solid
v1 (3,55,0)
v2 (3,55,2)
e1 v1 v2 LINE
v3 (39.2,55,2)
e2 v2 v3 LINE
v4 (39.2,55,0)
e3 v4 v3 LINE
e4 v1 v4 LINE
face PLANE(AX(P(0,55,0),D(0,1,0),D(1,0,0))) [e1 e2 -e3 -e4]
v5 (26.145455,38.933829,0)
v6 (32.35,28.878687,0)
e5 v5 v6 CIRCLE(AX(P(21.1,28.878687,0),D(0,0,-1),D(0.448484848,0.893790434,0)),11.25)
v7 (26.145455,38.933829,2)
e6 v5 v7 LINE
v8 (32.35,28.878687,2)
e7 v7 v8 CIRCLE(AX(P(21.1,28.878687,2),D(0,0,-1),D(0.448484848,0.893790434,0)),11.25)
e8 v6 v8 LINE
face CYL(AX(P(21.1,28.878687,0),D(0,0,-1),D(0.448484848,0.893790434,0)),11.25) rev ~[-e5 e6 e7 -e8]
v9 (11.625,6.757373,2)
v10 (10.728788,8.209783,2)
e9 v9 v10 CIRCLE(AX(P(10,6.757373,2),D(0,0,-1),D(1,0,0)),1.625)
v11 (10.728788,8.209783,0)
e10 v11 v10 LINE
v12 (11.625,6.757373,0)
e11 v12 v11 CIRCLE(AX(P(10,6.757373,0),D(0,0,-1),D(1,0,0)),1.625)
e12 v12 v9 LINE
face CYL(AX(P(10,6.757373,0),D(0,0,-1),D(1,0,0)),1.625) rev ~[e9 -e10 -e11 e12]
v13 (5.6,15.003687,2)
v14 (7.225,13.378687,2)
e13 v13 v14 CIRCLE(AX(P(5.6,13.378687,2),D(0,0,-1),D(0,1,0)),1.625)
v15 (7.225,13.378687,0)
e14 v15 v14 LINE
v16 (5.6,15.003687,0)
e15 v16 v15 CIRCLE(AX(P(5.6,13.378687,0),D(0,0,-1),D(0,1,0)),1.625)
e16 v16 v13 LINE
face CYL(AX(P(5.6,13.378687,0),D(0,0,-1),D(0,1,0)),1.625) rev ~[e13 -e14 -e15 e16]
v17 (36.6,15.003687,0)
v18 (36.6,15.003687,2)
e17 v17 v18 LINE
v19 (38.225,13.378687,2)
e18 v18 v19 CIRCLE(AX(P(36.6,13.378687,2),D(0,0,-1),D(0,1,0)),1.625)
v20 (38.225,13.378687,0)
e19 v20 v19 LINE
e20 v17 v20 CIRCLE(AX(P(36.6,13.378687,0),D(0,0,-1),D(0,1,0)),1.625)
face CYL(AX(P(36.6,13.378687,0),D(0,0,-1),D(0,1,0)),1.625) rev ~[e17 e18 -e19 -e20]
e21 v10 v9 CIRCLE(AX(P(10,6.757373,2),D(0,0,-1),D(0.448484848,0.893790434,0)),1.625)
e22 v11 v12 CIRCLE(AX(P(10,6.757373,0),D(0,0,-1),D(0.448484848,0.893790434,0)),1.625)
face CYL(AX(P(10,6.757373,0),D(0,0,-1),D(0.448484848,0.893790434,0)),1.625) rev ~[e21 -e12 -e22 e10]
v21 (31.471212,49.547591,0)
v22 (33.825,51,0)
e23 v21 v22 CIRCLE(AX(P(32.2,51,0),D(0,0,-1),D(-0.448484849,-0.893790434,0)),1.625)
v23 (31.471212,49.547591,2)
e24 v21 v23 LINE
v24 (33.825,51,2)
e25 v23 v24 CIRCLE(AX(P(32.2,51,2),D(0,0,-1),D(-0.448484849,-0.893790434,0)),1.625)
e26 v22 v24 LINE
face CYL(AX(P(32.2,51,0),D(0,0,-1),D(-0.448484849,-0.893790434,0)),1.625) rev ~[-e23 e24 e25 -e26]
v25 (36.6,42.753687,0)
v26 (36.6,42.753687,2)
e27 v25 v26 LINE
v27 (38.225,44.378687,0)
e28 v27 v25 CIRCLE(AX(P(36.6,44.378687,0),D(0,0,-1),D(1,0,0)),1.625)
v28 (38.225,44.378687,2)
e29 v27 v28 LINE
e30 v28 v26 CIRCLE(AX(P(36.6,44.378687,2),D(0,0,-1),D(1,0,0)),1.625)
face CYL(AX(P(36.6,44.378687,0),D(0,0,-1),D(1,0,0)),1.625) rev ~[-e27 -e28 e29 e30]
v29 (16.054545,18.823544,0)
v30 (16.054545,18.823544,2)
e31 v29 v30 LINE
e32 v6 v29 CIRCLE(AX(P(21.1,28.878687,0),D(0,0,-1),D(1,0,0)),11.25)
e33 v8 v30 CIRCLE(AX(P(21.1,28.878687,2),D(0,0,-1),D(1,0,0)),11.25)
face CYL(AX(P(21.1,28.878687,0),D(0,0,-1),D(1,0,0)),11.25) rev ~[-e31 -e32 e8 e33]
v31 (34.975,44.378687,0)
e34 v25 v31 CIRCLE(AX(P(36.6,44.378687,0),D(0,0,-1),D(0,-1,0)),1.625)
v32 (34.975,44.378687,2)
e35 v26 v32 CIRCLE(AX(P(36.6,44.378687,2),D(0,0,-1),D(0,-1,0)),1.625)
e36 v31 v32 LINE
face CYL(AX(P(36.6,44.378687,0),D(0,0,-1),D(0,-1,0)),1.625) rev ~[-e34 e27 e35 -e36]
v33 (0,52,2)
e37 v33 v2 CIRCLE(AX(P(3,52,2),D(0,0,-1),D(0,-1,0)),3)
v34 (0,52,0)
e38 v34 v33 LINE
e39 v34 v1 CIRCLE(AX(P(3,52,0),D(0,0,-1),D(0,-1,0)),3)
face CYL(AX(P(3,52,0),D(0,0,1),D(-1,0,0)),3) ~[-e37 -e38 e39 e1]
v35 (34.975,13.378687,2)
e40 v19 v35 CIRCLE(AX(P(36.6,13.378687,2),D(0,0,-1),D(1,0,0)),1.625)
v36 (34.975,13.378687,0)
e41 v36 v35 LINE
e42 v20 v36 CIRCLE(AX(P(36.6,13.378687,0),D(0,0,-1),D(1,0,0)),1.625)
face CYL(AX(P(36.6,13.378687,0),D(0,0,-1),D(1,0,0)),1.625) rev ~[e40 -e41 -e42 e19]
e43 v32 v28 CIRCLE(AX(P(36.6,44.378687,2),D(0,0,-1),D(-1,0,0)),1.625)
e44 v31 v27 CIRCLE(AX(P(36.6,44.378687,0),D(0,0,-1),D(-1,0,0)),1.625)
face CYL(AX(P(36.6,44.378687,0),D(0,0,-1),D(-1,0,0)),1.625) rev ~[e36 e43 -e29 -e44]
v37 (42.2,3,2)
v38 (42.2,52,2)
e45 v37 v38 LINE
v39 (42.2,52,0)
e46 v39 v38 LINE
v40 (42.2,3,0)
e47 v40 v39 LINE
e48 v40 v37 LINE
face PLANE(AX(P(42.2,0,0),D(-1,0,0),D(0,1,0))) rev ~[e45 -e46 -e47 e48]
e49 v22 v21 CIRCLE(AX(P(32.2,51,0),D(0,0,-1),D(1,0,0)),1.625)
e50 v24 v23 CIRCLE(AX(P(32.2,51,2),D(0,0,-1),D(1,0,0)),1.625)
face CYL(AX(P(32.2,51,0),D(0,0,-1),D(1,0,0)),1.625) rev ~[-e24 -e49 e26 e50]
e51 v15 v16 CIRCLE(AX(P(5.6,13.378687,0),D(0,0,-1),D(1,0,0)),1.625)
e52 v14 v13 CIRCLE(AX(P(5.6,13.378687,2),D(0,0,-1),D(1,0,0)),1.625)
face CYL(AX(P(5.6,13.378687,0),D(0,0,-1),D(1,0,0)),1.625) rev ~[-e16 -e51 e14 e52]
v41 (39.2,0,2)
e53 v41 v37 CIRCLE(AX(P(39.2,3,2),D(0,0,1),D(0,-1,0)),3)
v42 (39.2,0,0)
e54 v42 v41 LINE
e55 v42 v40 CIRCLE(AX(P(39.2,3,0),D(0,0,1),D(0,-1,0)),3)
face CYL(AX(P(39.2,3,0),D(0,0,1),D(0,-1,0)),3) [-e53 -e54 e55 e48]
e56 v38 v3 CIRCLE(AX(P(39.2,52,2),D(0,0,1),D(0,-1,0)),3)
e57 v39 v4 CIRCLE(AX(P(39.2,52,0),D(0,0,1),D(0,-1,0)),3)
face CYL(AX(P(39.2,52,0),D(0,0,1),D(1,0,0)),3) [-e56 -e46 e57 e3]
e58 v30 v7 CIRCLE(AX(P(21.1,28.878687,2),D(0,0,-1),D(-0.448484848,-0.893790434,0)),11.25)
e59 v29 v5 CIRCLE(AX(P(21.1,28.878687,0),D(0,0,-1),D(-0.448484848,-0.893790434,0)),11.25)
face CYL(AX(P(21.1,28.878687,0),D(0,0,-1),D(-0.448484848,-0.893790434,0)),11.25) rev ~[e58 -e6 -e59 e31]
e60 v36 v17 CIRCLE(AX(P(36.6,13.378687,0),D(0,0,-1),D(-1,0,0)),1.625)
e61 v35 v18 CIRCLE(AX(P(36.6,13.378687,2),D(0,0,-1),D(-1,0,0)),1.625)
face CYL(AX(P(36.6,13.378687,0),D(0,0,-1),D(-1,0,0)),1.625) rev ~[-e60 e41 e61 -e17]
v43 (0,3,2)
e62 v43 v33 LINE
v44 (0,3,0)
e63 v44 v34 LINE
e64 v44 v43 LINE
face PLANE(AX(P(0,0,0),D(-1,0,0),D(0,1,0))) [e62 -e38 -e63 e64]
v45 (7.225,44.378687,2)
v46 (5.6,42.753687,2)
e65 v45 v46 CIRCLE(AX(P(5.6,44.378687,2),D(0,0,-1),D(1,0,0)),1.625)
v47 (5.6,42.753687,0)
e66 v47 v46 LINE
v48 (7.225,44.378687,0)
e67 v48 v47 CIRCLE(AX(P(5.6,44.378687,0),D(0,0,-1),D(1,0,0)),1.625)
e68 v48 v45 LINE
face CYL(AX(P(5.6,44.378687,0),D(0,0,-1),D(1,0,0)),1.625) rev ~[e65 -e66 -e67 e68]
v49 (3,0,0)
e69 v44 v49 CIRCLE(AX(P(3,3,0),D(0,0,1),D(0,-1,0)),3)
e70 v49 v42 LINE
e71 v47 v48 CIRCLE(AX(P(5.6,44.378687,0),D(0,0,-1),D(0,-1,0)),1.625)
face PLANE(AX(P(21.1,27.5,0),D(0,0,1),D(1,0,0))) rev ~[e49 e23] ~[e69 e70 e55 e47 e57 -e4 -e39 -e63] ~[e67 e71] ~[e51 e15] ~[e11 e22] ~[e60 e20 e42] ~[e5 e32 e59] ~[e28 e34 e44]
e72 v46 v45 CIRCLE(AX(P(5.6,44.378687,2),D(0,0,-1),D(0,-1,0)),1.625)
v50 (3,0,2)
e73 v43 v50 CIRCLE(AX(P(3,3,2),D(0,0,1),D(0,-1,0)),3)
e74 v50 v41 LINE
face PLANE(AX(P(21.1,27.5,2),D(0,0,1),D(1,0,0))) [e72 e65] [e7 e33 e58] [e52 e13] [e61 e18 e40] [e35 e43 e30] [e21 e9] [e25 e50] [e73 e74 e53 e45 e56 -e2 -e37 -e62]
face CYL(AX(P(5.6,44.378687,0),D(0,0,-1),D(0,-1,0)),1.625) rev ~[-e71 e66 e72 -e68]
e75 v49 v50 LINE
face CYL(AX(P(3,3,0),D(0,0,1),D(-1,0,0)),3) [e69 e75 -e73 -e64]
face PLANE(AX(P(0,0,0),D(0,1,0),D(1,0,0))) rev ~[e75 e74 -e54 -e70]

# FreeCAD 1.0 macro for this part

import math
import FreeCAD as App
import Part
import Sketcher

V = App.Vector
Q = App.Units.Quantity


def edges_at(feature, points):
    """Names of the edges that pass closest to the given points."""
    edges = feature.Shape.Edges
    near = lambda p: min(range(len(edges)), key=lambda i: edges[i].distToShape(Part.Vertex(*p))[0])
    return sorted({f"Edge{near(p) + 1}" for p in points})


def add_polygon(sketch, points):
    """Adds a closed chain of lines whose ends are joined by coincident constraints."""
    first, n = sketch.GeometryCount, len(points)
    for a, b in zip(points, points[1:] + points[:1]):
        sketch.addGeometry(Part.LineSegment(App.Vector(*a, 0), App.Vector(*b, 0)), False)
    for i in range(n):
        sketch.addConstraint(Sketcher.Constraint("Coincident", first + i, 2, first + (i + 1) % n, 1))

doc = App.newDocument("Part")
params = doc.addObject("Spreadsheet::Sheet", "Params")
for row, (alias, value) in enumerate([
    ("sketch1_height", "55 mm"),
    ("sketch1_radius", "11.25 mm"),
    ("sketch1_width", "42.2 mm"),
    ("pad1_length", "2 mm"),
    ("fillet_radius", "3 mm"),
], start=1):
    params.set(f"A{row}", alias)
    params.set(f"B{row}", "=" + value)
    params.setAlias(f"B{row}", alias)

body = doc.addObject("PartDesign::Body", "Body")

sketch1 = body.newObject("Sketcher::SketchObject", "Sketch")
sketch1.AttachmentSupport = (doc.getObject("XY_Plane"), [""])
sketch1.MapMode = "FlatFace"
add_polygon(sketch1, [(0, 55), (0, 0), (42.2, 0), (42.2, 55)])
sketch1.addGeometry(Part.ArcOfCircle(Part.Circle(V(10, 6.8, 0), V(0, 0, 1), 1.6), math.radians(0), math.radians(63)), False)
sketch1.addGeometry(Part.ArcOfCircle(Part.Circle(V(10, 6.8, 0), V(0, 0, 1), 1.6), math.radians(63), math.radians(360)), False)
sketch1.addGeometry(Part.ArcOfCircle(Part.Circle(V(5.6, 44.4, 0), V(0, 0, 1), 1.6), math.radians(0), math.radians(270)), False)
sketch1.addGeometry(Part.ArcOfCircle(Part.Circle(V(5.6, 44.4, 0), V(0, 0, 1), 1.6), math.radians(-90), math.radians(0)), False)
sketch1.addGeometry(Part.ArcOfCircle(Part.Circle(V(36.6, 44.4, 0), V(0, 0, 1), 1.6), math.radians(0), math.radians(180)), False)
sketch1.addGeometry(Part.ArcOfCircle(Part.Circle(V(36.6, 44.4, 0), V(0, 0, 1), 1.6), math.radians(-90), math.radians(0)), False)
sketch1.addGeometry(Part.ArcOfCircle(Part.Circle(V(36.6, 44.4, 0), V(0, 0, 1), 1.6), math.radians(180), math.radians(270)), False)
sketch1.addGeometry(Part.ArcOfCircle(Part.Circle(V(36.6, 13.4, 0), V(0, 0, 1), 1.6), math.radians(0), math.radians(90)), False)
sketch1.addGeometry(Part.ArcOfCircle(Part.Circle(V(36.6, 13.4, 0), V(0, 0, 1), 1.6), math.radians(180), math.radians(360)), False)
sketch1.addGeometry(Part.ArcOfCircle(Part.Circle(V(36.6, 13.4, 0), V(0, 0, 1), 1.6), math.radians(90), math.radians(180)), False)
sketch1.addGeometry(Part.ArcOfCircle(Part.Circle(V(21.1, 28.9, 0), V(0, 0, 1), 11.2), math.radians(63), math.radians(243)), False)
sketch1.addGeometry(Part.ArcOfCircle(Part.Circle(V(21.1, 28.9, 0), V(0, 0, 1), 11.2), math.radians(0), math.radians(63)), False)
sketch1.addGeometry(Part.ArcOfCircle(Part.Circle(V(21.1, 28.9, 0), V(0, 0, 1), 11.2), math.radians(-117), math.radians(0)), False)
sketch1.addGeometry(Part.ArcOfCircle(Part.Circle(V(5.6, 13.4, 0), V(0, 0, 1), 1.6), math.radians(90), math.radians(360)), False)
sketch1.addGeometry(Part.ArcOfCircle(Part.Circle(V(5.6, 13.4, 0), V(0, 0, 1), 1.6), math.radians(0), math.radians(90)), False)
sketch1.addGeometry(Part.ArcOfCircle(Part.Circle(V(32.2, 51, 0), V(0, 0, 1), 1.6), math.radians(-117), math.radians(0)), False)
sketch1.addGeometry(Part.ArcOfCircle(Part.Circle(V(32.2, 51, 0), V(0, 0, 1), 1.6), math.radians(0), math.radians(243)), False)
sketch1.addConstraint(Sketcher.Constraint("Tangent", 4, 1, 5, 2))
sketch1.addConstraint(Sketcher.Constraint("Coincident", 5, 1, 4, 2))
sketch1.addConstraint(Sketcher.Constraint("Tangent", 6, 1, 7, 2))
sketch1.addConstraint(Sketcher.Constraint("Coincident", 7, 1, 6, 2))
sketch1.addConstraint(Sketcher.Constraint("Tangent", 8, 1, 9, 2))
sketch1.addConstraint(Sketcher.Constraint("Tangent", 9, 1, 10, 2))
sketch1.addConstraint(Sketcher.Constraint("Tangent", 10, 1, 8, 2))
sketch1.addConstraint(Sketcher.Constraint("Tangent", 11, 1, 12, 2))
sketch1.addConstraint(Sketcher.Constraint("Tangent", 12, 1, 13, 2))
sketch1.addConstraint(Sketcher.Constraint("Tangent", 13, 1, 11, 2))
sketch1.addConstraint(Sketcher.Constraint("Tangent", 14, 1, 15, 2))
sketch1.addConstraint(Sketcher.Constraint("Tangent", 15, 1, 16, 2))
sketch1.addConstraint(Sketcher.Constraint("Tangent", 16, 1, 14, 2))
sketch1.addConstraint(Sketcher.Constraint("Tangent", 17, 1, 18, 2))
sketch1.addConstraint(Sketcher.Constraint("Coincident", 18, 1, 17, 2))
sketch1.addConstraint(Sketcher.Constraint("Tangent", 19, 1, 20, 2))
sketch1.addConstraint(Sketcher.Constraint("Coincident", 20, 1, 19, 2))
sketch1.addConstraint(Sketcher.Constraint("Vertical", 0))
sketch1.addConstraint(Sketcher.Constraint("Horizontal", 1))
sketch1.addConstraint(Sketcher.Constraint("Vertical", 2))
sketch1.addConstraint(Sketcher.Constraint("Horizontal", 3))
sketch1.addConstraint(Sketcher.Constraint("Coincident", 0, 2, -1, 1))
sketch1.addConstraint(Sketcher.Constraint("Equal", 5, 6))
sketch1.addConstraint(Sketcher.Constraint("Equal", 7, 8))
sketch1.addConstraint(Sketcher.Constraint("Equal", 10, 11))
sketch1.addConstraint(Sketcher.Constraint("Equal", 13, 17))
sketch1.addConstraint(Sketcher.Constraint("Equal", 18, 19))
sketch1.addConstraint(Sketcher.Constraint("Horizontal", 7, 3, 8, 3))
sketch1.addConstraint(Sketcher.Constraint("Horizontal", 13, 3, 17, 3))
sketch1.addConstraint(Sketcher.Constraint("Horizontal", 5, 3, 4, 1))
sketch1.addConstraint(Sketcher.Constraint("Horizontal", 10, 3, 6, 1))
sketch1.addConstraint(Sketcher.Constraint("Horizontal", 6, 1, 8, 1))
sketch1.addConstraint(Sketcher.Constraint("Horizontal", 8, 1, 10, 1))
sketch1.addConstraint(Sketcher.Constraint("Horizontal", 18, 3, 11, 1))
sketch1.addConstraint(Sketcher.Constraint("Horizontal", 11, 1, 12, 1))
sketch1.addConstraint(Sketcher.Constraint("Horizontal", 16, 3, 15, 1))
sketch1.addConstraint(Sketcher.Constraint("Horizontal", 12, 1, 18, 1))
sketch1.addConstraint(Sketcher.Constraint("Horizontal", 19, 3, 20, 1))
sketch1.addConstraint(Sketcher.Constraint("Vertical", 10, 3, 11, 3))
sketch1.addConstraint(Sketcher.Constraint("Vertical", 7, 3, 17, 3))
sketch1.addConstraint(Sketcher.Constraint("Vertical", 18, 3, 7, 1))
sketch1.addConstraint(Sketcher.Constraint("Vertical", 13, 3, 9, 1))
sketch1.addConstraint(Sketcher.Constraint("Vertical", 9, 1, 13, 1))
sketch1.addConstraint(Sketcher.Constraint("Vertical", 7, 1, 17, 1))
sketch1.addConstraint(Sketcher.Constraint("DistanceY", 0, 2, 0, 1, Q("55 mm")))
sketch1.addConstraint(Sketcher.Constraint("Radius", 14, Q("11.25 mm")))
sketch1.addConstraint(Sketcher.Constraint("DistanceX", 1, 1, 1, 2, Q("42.2 mm")))
sketch1.addConstraint(Sketcher.Constraint("DistanceX", -1, 1, 4, 3, Q("10 mm")))
sketch1.addConstraint(Sketcher.Constraint("DistanceY", -1, 1, 19, 3, Q("51 mm")))
sketch1.addConstraint(Sketcher.Constraint("Radius", 4, Q("1.625 mm")))
sketch1.addConstraint(Sketcher.Constraint("DistanceX", 6, 3, 8, 3, Q("31 mm")))
sketch1.addConstraint(Sketcher.Constraint("DistanceY", 11, 3, 8, 3, Q("31 mm")))
sketch1.addConstraint(Sketcher.Constraint("DistanceX", 19, 3, 2, 2, Q("10 mm")))
sketch1.addConstraint(Sketcher.Constraint("DistanceX", -1, 1, 6, 3, Q("5.6 mm")))
sketch1.addConstraint(Sketcher.Constraint("DistanceX", -1, 1, 14, 3, Q("21.1 mm")))
sketch1.addConstraint(Sketcher.Constraint("DistanceY", 14, 3, 8, 3, Q("15.5 mm")))
sketch1.addConstraint(Sketcher.Constraint("DistanceY", -1, 1, 14, 1, Q("38.933829 mm")))
sketch1.addConstraint(Sketcher.Constraint("DistanceY", -1, 1, 19, 1, Q("49.547591 mm")))
sketch1.addConstraint(Sketcher.Constraint("DistanceY", 4, 3, 5, 1, Q("1.452409 mm")))
sketch1.addConstraint(Sketcher.Constraint("DistanceY", -1, 1, 4, 3, Q("6.757373 mm")))
sketch1.addConstraint(Sketcher.Constraint("DistanceY", -1, 1, 6, 3, Q("44.378687 mm")))
sketch1.addConstraint(Sketcher.Constraint("DistanceX", -1, 1, 16, 1, Q("16.054545 mm")))
sketch1.setExpression("Constraints[48]", "Params.sketch1_height")
sketch1.setExpression("Constraints[49]", "Params.sketch1_radius")
sketch1.setExpression("Constraints[50]", "Params.sketch1_width")
pad1 = body.newObject("PartDesign::Pad", "Pad")
pad1.Profile = sketch1
pad1.setExpression("Length", "Params.pad1_length")
doc.recompute()

fillet = body.newObject("PartDesign::Fillet", "Fillet")
fillet.Base = (pad1, edges_at(pad1, [
    (42.2, 55, 1),
    (0, 55, 1),
    (0, 0, 1),
    (42.2, 0, 1),
]))
fillet.setExpression("Radius", "Params.fillet_radius")

doc.recompute()
